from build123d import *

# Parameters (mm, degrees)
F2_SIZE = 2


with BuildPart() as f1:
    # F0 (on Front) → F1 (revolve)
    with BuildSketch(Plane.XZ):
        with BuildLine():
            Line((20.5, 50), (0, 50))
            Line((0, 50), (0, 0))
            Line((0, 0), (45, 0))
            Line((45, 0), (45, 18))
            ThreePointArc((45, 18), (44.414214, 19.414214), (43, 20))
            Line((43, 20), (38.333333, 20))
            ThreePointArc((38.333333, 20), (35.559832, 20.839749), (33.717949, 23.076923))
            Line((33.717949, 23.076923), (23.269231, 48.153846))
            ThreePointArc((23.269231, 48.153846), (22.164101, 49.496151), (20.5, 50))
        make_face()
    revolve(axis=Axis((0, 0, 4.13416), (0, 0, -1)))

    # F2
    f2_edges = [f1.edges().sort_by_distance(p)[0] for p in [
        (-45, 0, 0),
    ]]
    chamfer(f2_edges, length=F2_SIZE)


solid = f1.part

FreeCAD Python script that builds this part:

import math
import FreeCAD as App
import Part
import Sketcher
from FreeCAD import Vector


def edges_at(feature, points):
    """Names of the edges that pass closest to the given points."""
    edges = feature.Shape.Edges
    near = lambda p: min(range(len(edges)), key=lambda i: edges[i].distToShape(Part.Vertex(*p))[0])
    return sorted({f"Edge{near(p) + 1}" for p in points})

doc = App.newDocument("Part")
body = doc.addObject("PartDesign::Body", "Body")

sketch1 = body.newObject("Sketcher::SketchObject", "Sketch")
sketch1.AttachmentSupport = (doc.getObject("XZ_Plane"), [""])
sketch1.MapMode = "FlatFace"
sketch1.addGeometry(Part.LineSegment(Vector(20.5, 50, 0), Vector(0, 50, 0)), False)
sketch1.addGeometry(Part.LineSegment(Vector(0, 50, 0), Vector(0, 0, 0)), False)
sketch1.addGeometry(Part.LineSegment(Vector(0, 0, 0), Vector(45, 0, 0)), False)
sketch1.addGeometry(Part.LineSegment(Vector(45, 0, 0), Vector(45, 18, 0)), False)
sketch1.addGeometry(Part.ArcOfCircle(Part.Circle(Vector(43, 18, 0), Vector(0, 0, 1), 2), math.radians(0), math.radians(90)), False)
sketch1.addGeometry(Part.LineSegment(Vector(43, 20, 0), Vector(38.3, 20, 0)), False)
sketch1.addGeometry(Part.ArcOfCircle(Part.Circle(Vector(38.3, 25, 0), Vector(0, 0, 1), 5), math.radians(-157), math.radians(-90)), False)
sketch1.addGeometry(Part.LineSegment(Vector(33.7, 23.1, 0), Vector(23.3, 48.2, 0)), False)
sketch1.addGeometry(Part.ArcOfCircle(Part.Circle(Vector(20.5, 47, 0), Vector(0, 0, 1), 3), math.radians(23), math.radians(90)), False)
sketch1.addConstraint(Sketcher.Constraint("Coincident", 0, 2, 1, 1))
sketch1.addConstraint(Sketcher.Constraint("Coincident", 1, 2, 2, 1))
sketch1.addConstraint(Sketcher.Constraint("Coincident", 2, 2, 3, 1))
sketch1.addConstraint(Sketcher.Constraint("Tangent", 3, 2, 4, 1))
sketch1.addConstraint(Sketcher.Constraint("Tangent", 4, 2, 5, 1))
sketch1.addConstraint(Sketcher.Constraint("Tangent", 5, 2, 6, 2))
sketch1.addConstraint(Sketcher.Constraint("Tangent", 6, 1, 7, 1))
sketch1.addConstraint(Sketcher.Constraint("Tangent", 7, 2, 8, 1))
sketch1.addConstraint(Sketcher.Constraint("Tangent", 8, 2, 0, 1))
sketch1.addConstraint(Sketcher.Constraint("Horizontal", 0))
sketch1.addConstraint(Sketcher.Constraint("Vertical", 1))
sketch1.addConstraint(Sketcher.Constraint("Horizontal", 2))
sketch1.addConstraint(Sketcher.Constraint("Vertical", 3))
sketch1.addConstraint(Sketcher.Constraint("Horizontal", 5))
sketch1.addConstraint(Sketcher.Constraint("Coincident", 1, 2, -1, 1))
sketch1.addConstraint(Sketcher.Constraint("Radius", 4, 1.999999))
sketch1.addConstraint(Sketcher.Constraint("Radius", 6, 5.0))
sketch1.addConstraint(Sketcher.Constraint("Radius", 8, 2.999999))
sketch1.addConstraint(Sketcher.Constraint("DistanceX", 2, 1, 2, 2, 45.0))
sketch1.addConstraint(Sketcher.Constraint("DistanceY", 1, 2, 1, 1, 50.0))
sketch1.addConstraint(Sketcher.Constraint("DistanceY", 3, 1, 3, 2, 18.0))
sketch1.addConstraint(Sketcher.Constraint("DistanceX", 0, 2, 0, 1, 20.5))
sketch1.addConstraint(Sketcher.Constraint("DistanceX", 5, 2, 5, 1, 4.666667))
revolution = body.newObject("PartDesign::Revolution", "Revolution")
revolution.Profile = sketch1
revolution.ReferenceAxis = (sketch1, ["V_Axis"])
revolution.Angle = 360
doc.recompute()

chamfer = body.newObject("PartDesign::Chamfer", "Chamfer")
chamfer.Base = (revolution, edges_at(revolution, [(-45, 0, 0)]))
chamfer.Size = 2

doc.recompute()
